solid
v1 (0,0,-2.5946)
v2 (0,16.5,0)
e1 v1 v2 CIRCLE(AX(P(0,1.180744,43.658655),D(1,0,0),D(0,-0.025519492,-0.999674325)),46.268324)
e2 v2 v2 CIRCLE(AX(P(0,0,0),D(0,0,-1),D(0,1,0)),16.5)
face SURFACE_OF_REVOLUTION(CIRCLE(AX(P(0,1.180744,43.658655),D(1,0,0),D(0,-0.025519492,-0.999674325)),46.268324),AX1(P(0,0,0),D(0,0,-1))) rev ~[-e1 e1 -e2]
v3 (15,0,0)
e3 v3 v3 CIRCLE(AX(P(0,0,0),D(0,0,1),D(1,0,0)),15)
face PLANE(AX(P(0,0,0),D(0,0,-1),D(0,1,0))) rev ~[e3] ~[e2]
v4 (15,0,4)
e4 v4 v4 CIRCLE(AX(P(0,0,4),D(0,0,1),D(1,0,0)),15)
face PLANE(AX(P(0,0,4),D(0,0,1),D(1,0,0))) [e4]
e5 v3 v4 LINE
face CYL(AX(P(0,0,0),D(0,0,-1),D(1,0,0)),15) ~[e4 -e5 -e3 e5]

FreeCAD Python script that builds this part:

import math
import FreeCAD as App
import Part
import Sketcher

doc = App.newDocument("Part")
body = doc.addObject("PartDesign::Body", "Body")

sketch1 = body.newObject("Sketcher::SketchObject", "Sketch")
sketch1.AttachmentSupport = (doc.getObject("YZ_Plane"), [""])
sketch1.MapMode = "FlatFace"
sketch1.addGeometry([
    Part.LineSegment(App.Vector(0, 0, 0), App.Vector(0, -2.6, 0)),
    Part.ArcOfCircle(Part.Circle(App.Vector(1.2, 43.7, 0), App.Vector(0, 0, 1), 46.3), math.radians(-91), math.radians(-71)),
    Part.LineSegment(App.Vector(16.5, 0, 0), App.Vector(0, 0, 0)),
], False)
sketch1.addConstraint([
    Sketcher.Constraint("Coincident", 0, 2, 1, 1),
    Sketcher.Constraint("Coincident", 1, 2, 2, 1),
    Sketcher.Constraint("Coincident", 2, 2, 0, 1),
    Sketcher.Constraint("Vertical", 0),
    Sketcher.Constraint("Horizontal", 2),
    Sketcher.Constraint("Coincident", 2, 2, -1, 1),
    Sketcher.Constraint("DistanceX", 2, 2, 2, 1, 16.5),
    Sketcher.Constraint("Radius", 1, 46.2675),
    Sketcher.Constraint("DistanceY", 0, 2, 0, 1, 2.5946),
])
revolution = body.newObject("PartDesign::Revolution", "Revolution")
revolution.Profile = sketch1
revolution.ReferenceAxis = (sketch1, ["V_Axis"])
revolution.Angle = 360

sketch2 = body.newObject("Sketcher::SketchObject", "Sketch001")
sketch2.AttachmentSupport = (doc.getObject("XY_Plane"), [""])
sketch2.MapMode = "FlatFace"
sketch2.addGeometry(Part.Circle(App.Vector(0, 0, 0), App.Vector(0, 0, 1), 15), False)
sketch2.addConstraint([
    Sketcher.Constraint("Coincident", 0, 3, -1, 1),
    Sketcher.Constraint("Diameter", 0, 30.0),
])
pad1 = body.newObject("PartDesign::Pad", "Pad")
pad1.Profile = sketch2
pad1.Length = 4

doc.recompute()
